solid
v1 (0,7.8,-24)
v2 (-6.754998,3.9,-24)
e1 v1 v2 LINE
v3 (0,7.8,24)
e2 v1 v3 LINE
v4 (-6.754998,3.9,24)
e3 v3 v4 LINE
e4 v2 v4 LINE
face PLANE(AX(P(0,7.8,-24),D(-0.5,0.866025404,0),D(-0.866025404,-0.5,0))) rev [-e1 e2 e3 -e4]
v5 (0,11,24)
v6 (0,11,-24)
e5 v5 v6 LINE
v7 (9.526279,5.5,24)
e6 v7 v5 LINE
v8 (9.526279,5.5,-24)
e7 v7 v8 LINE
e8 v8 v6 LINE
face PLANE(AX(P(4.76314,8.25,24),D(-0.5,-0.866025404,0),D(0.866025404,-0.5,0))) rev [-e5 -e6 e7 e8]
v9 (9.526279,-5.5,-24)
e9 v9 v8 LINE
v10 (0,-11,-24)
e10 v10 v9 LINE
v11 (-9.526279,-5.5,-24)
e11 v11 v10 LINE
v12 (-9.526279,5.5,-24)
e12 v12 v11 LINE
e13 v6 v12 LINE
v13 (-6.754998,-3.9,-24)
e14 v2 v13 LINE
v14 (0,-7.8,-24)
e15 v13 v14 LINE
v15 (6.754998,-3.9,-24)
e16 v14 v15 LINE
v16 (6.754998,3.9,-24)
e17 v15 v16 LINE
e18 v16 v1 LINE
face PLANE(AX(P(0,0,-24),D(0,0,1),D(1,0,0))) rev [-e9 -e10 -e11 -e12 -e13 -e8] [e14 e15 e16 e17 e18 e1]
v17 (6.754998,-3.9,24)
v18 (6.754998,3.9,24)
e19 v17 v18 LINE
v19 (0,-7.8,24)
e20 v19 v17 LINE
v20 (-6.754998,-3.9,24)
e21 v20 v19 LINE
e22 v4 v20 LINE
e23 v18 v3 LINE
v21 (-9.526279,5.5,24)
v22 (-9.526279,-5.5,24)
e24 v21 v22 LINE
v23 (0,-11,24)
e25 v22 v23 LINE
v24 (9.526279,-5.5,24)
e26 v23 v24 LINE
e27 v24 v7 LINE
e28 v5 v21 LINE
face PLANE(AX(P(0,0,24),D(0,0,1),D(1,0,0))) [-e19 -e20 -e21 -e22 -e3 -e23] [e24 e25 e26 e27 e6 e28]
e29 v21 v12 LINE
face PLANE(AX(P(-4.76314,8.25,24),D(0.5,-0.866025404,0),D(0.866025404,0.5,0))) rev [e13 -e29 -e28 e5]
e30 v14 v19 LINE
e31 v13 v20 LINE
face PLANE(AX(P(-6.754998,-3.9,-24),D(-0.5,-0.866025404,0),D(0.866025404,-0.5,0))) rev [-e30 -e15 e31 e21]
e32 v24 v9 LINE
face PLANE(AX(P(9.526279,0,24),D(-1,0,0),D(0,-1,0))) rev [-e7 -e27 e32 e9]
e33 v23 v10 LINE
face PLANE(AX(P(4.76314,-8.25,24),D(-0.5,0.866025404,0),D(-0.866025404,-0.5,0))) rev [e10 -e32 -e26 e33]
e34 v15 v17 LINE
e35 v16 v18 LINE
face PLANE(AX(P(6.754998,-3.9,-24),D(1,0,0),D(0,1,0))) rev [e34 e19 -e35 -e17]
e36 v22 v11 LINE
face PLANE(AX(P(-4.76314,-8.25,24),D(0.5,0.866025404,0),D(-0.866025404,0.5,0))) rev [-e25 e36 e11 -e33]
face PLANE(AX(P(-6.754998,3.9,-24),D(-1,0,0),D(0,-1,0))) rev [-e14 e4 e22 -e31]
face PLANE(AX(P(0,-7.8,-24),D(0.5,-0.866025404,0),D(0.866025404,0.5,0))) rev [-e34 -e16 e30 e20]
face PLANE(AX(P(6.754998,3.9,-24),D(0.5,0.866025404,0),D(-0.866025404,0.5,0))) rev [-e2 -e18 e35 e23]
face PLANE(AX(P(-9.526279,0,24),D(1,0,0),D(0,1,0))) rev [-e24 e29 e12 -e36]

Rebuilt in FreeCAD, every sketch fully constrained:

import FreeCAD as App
import Part
import Sketcher
from FreeCAD import Vector
Q = App.Units.Quantity


def add_polygon(sketch, points):
    """Adds a closed chain of lines whose ends are joined by coincident constraints."""
    first, n = sketch.GeometryCount, len(points)
    for a, b in zip(points, points[1:] + points[:1]):
        sketch.addGeometry(Part.LineSegment(App.Vector(*a, 0), App.Vector(*b, 0)), False)
    for i in range(n):
        sketch.addConstraint(Sketcher.Constraint("Coincident", first + i, 2, first + (i + 1) % n, 1))

doc = App.newDocument("Part")
params = doc.addObject("Spreadsheet::Sheet", "Params")
for row, (alias, value) in enumerate([
    ("sketch1_height", "11 mm"),
    ("sketch1_length", "11 mm"),
    ("pad1_length", "48 mm"),
    ("sketch2_height", "7.8 mm"),
    ("sketch2_length", "7.8 mm"),
], start=1):
    params.set(f"A{row}", alias)
    params.set(f"B{row}", "=" + value)
    params.setAlias(f"B{row}", alias)

body = doc.addObject("PartDesign::Body", "Body")

# Sketch on XY plane
sketch1 = body.newObject("Sketcher::SketchObject", "Sketch")
sketch1.AttachmentSupport = (doc.getObject("XY_Plane"), [""])
sketch1.MapMode = "FlatFace"
add_polygon(sketch1, [(0, -11), (9.526279, -5.5), (9.526279, 5.5), (0, 11), (-9.526279, 5.5), (-9.526279, -5.5)])  # lines 0-5
sketch1.addConstraint(Sketcher.Constraint("Vertical", 1))
sketch1.addConstraint(Sketcher.Constraint("Vertical", 4))
sketch1.addConstraint(Sketcher.Constraint("Symmetric", 0, 2, 3, 2, -1, 1))
sketch1.addConstraint(Sketcher.Constraint("Symmetric", 2, 2, 5, 2, -1, 1))
sketch1.addConstraint(Sketcher.Constraint("PointOnObject", 2, 2, -2))
sketch1.addConstraint(Sketcher.Constraint("Parallel", 2, 5))
sketch1.addConstraint(Sketcher.Constraint("Horizontal", 1, 2, 3, 2))
sketch1.addConstraint(Sketcher.Constraint("DistanceY", 1, 1, 1, 2, Q("11 mm")))
sketch1.addConstraint(Sketcher.Constraint("Angle", 0, Q("30 deg")))
sketch1.addConstraint(Sketcher.Constraint("Distance", 0, Q("11 mm")))
sketch1.setExpression("Constraints[13]", "Params.sketch1_height")
sketch1.setExpression("Constraints[15]", "Params.sketch1_length")
pad1 = body.newObject("PartDesign::Pad", "Pad")
pad1.Profile = sketch1
pad1.setExpression("Length", "Params.pad1_length")
pad1.Midplane = True

# Sketch on XY plane
sketch2 = body.newObject("Sketcher::SketchObject", "Sketch001")
sketch2.AttachmentSupport = (doc.getObject("XY_Plane"), [""])
sketch2.MapMode = "FlatFace"
add_polygon(sketch2, [(0, -7.8), (6.754998, -3.9), (6.754998, 3.9), (0, 7.8), (-6.754998, 3.9), (-6.754998, -3.9)])  # lines 0-5
sketch2.addConstraint(Sketcher.Constraint("Vertical", 1))
sketch2.addConstraint(Sketcher.Constraint("Vertical", 4))
sketch2.addConstraint(Sketcher.Constraint("Symmetric", 0, 2, 3, 2, -1, 1))
sketch2.addConstraint(Sketcher.Constraint("Symmetric", 2, 2, 5, 2, -1, 1))
sketch2.addConstraint(Sketcher.Constraint("PointOnObject", 2, 2, -2))
sketch2.addConstraint(Sketcher.Constraint("Parallel", 2, 5))
sketch2.addConstraint(Sketcher.Constraint("Horizontal", 1, 2, 3, 2))
sketch2.addConstraint(Sketcher.Constraint("Angle", 0, Q("30 deg")))
sketch2.addConstraint(Sketcher.Constraint("DistanceY", 1, 1, 1, 2, Q("7.8 mm")))
sketch2.addConstraint(Sketcher.Constraint("Distance", 0, Q("7.8 mm")))
sketch2.setExpression("Constraints[14]", "Params.sketch2_height")
sketch2.setExpression("Constraints[15]", "Params.sketch2_length")
pocket1 = body.newObject("PartDesign::Pocket", "Pocket")
pocket1.Profile = sketch2
pocket1.Type = "ThroughAll"
pocket1.Midplane = True

doc.recompute()
